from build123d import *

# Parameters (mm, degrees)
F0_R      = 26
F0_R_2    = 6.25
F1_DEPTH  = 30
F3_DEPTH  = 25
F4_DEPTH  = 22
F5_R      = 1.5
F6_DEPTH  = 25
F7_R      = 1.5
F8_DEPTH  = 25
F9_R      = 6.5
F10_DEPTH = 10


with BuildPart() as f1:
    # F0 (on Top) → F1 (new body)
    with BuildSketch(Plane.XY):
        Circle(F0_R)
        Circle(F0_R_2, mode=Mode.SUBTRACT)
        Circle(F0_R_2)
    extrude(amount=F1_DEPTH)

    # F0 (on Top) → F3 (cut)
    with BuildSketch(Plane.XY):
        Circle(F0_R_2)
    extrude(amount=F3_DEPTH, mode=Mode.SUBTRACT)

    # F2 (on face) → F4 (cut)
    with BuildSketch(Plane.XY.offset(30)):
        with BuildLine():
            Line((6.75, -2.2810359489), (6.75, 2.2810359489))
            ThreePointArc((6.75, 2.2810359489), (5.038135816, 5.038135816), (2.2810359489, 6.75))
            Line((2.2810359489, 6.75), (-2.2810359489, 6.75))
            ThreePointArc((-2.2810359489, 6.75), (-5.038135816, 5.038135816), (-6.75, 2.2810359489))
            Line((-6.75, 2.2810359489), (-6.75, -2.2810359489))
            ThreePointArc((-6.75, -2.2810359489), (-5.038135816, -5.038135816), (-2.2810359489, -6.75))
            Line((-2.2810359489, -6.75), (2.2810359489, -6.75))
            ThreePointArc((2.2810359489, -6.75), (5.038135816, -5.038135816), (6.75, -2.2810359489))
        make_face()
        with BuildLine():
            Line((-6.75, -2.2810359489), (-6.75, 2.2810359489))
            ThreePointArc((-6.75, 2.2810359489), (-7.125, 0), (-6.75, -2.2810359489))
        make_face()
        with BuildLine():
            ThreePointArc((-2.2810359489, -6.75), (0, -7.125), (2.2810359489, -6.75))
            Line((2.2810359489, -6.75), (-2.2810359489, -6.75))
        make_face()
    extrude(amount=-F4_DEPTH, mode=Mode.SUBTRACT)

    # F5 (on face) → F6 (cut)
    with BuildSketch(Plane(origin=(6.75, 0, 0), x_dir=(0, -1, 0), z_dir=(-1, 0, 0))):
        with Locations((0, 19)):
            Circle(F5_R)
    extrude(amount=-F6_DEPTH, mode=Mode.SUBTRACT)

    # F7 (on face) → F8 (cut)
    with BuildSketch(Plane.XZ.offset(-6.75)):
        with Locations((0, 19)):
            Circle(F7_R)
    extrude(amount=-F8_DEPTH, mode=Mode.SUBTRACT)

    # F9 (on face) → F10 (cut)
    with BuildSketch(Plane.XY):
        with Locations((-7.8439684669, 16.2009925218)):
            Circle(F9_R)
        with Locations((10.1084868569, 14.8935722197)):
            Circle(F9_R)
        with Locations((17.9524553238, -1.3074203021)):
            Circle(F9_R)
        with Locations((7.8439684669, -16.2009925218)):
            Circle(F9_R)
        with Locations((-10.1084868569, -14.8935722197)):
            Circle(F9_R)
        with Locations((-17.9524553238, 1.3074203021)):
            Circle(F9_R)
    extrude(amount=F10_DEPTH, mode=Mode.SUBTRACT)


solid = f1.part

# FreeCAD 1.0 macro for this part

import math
import FreeCAD as App
import Part
import Sketcher
Q = App.Units.Quantity

doc = App.newDocument("Part")
body = doc.addObject("PartDesign::Body", "Body")

# Sketch on XY plane
sketch1 = doc.addObject("Sketcher::SketchObject", "Sketch")
body.addObject(sketch1)
sketch1.AttachmentSupport = (doc.XY_Plane, [""])
sketch1.MapMode = "FlatFace"
sketch1.addGeometry(Part.Circle(App.Vector(0, 0, 0), App.Vector(0, 0, 1), 26), False)
sketch1.addConstraint([
    Sketcher.Constraint("Coincident", 0, 3, -1, 1),
    Sketcher.Constraint("Diameter", 0, Q("52 mm")),
])
pad1 = doc.addObject("PartDesign::Pad", "Pad")
body.addObject(pad1)
pad1.Profile = sketch1
pad1.Length = 30

# Sketch on XY plane
sketch2 = doc.addObject("Sketcher::SketchObject", "Sketch001")
body.addObject(sketch2)
sketch2.AttachmentSupport = (doc.XY_Plane, [""])
sketch2.MapMode = "FlatFace"
sketch2.addGeometry(Part.Circle(App.Vector(0, 0, 0), App.Vector(0, 0, 1), 6.25), False)
sketch2.addConstraint([
    Sketcher.Constraint("Coincident", 0, 3, -1, 1),
    Sketcher.Constraint("Diameter", 0, Q("12.5 mm")),
])
pocket1 = doc.addObject("PartDesign::Pocket", "Pocket")
body.addObject(pocket1)
pocket1.Profile = sketch2
pocket1.Length = 25
pocket1.Reversed = True

# Sketch on XY plane
sketch3 = doc.addObject("Sketcher::SketchObject", "Sketch002")
body.addObject(sketch3)
sketch3.AttachmentSupport = (doc.XY_Plane, [""])
sketch3.MapMode = "FlatFace"
sketch3.AttachmentOffset = App.Placement(App.Vector(0, 0, 30), App.Rotation())
sketch3.addGeometry([
    Part.LineSegment(App.Vector(6.75, -2.281036, 0), App.Vector(6.75, 2.281036, 0)),  # 0
    Part.ArcOfCircle(Part.Circle(App.Vector(0, 0, 0), App.Vector(0, 0, 1), 7.125), math.radians(18.671718), math.radians(71.328282)),  # 1
    Part.LineSegment(App.Vector(2.281036, 6.75, 0), App.Vector(-2.281036, 6.75, 0)),  # 2
    Part.ArcOfCircle(Part.Circle(App.Vector(0, 0, 0), App.Vector(0, 0, 1), 7.125), math.radians(108.671718), math.radians(161.328282)),  # 3
    Part.ArcOfCircle(Part.Circle(App.Vector(0, 0, 0), App.Vector(0, 0, 1), 7.125), math.radians(161.328282), math.radians(198.671718)),  # 4
    Part.ArcOfCircle(Part.Circle(App.Vector(0, 0, 0), App.Vector(0, 0, 1), 7.125), math.radians(-161.328282), math.radians(-108.671718)),  # 5
    Part.ArcOfCircle(Part.Circle(App.Vector(0, 0, 0), App.Vector(0, 0, 1), 7.125), math.radians(-108.671718), math.radians(-71.328282)),  # 6
    Part.ArcOfCircle(Part.Circle(App.Vector(0, 0, 0), App.Vector(0, 0, 1), 7.125), math.radians(-71.328282), math.radians(-18.671718)),  # 7
], False)
sketch3.addConstraint([
    Sketcher.Constraint("Coincident", 0, 2, 1, 1),
    Sketcher.Constraint("Coincident", 1, 2, 2, 1),
    Sketcher.Constraint("Coincident", 2, 2, 3, 1),
    Sketcher.Constraint("Tangent", 3, 2, 4, 1),
    Sketcher.Constraint("Tangent", 4, 2, 5, 1),
    Sketcher.Constraint("Tangent", 5, 2, 6, 1),
    Sketcher.Constraint("Tangent", 6, 2, 7, 1),
    Sketcher.Constraint("Coincident", 7, 2, 0, 1),
    Sketcher.Constraint("Vertical", 0),
    Sketcher.Constraint("Horizontal", 2),
    Sketcher.Constraint("Coincident", 1, 3, -1, 1),
    Sketcher.Constraint("Coincident", 3, 3, -1, 1),
    Sketcher.Constraint("Coincident", 5, 3, -1, 1),
    Sketcher.Constraint("Coincident", 7, 3, -1, 1),
    Sketcher.Constraint("Equal", 1, 3),
    Sketcher.Constraint("Horizontal", 0, 2, 3, 2),
    Sketcher.Constraint("Horizontal", 5, 2, 6, 2),
    Sketcher.Constraint("Horizontal", 4, 2, 7, 2),
    Sketcher.Constraint("Vertical", 2, 2, 5, 2),
    Sketcher.Constraint("Equal", 2, 0),
    Sketcher.Constraint("Radius", 1, Q("7.125 mm")),
    Sketcher.Constraint("DistanceX", -1, 1, 0, 2, Q("6.75 mm")),
])
pocket2 = doc.addObject("PartDesign::Pocket", "Pocket001")
body.addObject(pocket2)
pocket2.Profile = sketch3
pocket2.Length = 22

# Sketch on YZ plane
sketch4 = doc.addObject("Sketcher::SketchObject", "Sketch003")
body.addObject(sketch4)
sketch4.AttachmentSupport = (doc.YZ_Plane, [""])
sketch4.MapMode = "FlatFace"
sketch4.AttachmentOffset = App.Placement(App.Vector(0, 0, 6.75), App.Rotation())
sketch4.addGeometry(Part.Circle(App.Vector(0, 19, 0), App.Vector(0, 0, 1), 1.5), False)
sketch4.addConstraint([
    Sketcher.Constraint("PointOnObject", 0, 3, -2),
    Sketcher.Constraint("Diameter", 0, Q("3 mm")),
    Sketcher.Constraint("DistanceY", -1, 1, 0, 3, Q("19 mm")),
])
pocket3 = doc.addObject("PartDesign::Pocket", "Pocket002")
body.addObject(pocket3)
pocket3.Profile = sketch4
pocket3.Length = 25
pocket3.Reversed = True

# Sketch on XZ plane
sketch5 = doc.addObject("Sketcher::SketchObject", "Sketch004")
body.addObject(sketch5)
sketch5.AttachmentSupport = (doc.XZ_Plane, [""])
sketch5.MapMode = "FlatFace"
sketch5.AttachmentOffset = App.Placement(App.Vector(0, 0, -6.75), App.Rotation())
sketch5.addGeometry(Part.Circle(App.Vector(0, 19, 0), App.Vector(0, 0, 1), 1.5), False)
sketch5.addConstraint([
    Sketcher.Constraint("PointOnObject", 0, 3, -2),
    Sketcher.Constraint("Diameter", 0, Q("3 mm")),
    Sketcher.Constraint("DistanceY", -1, 1, 0, 3, Q("19 mm")),
])
pocket4 = doc.addObject("PartDesign::Pocket", "Pocket003")
body.addObject(pocket4)
pocket4.Profile = sketch5
pocket4.Length = 25

# Sketch on XY plane
sketch6 = doc.addObject("Sketcher::SketchObject", "Sketch005")
body.addObject(sketch6)
sketch6.AttachmentSupport = (doc.XY_Plane, [""])
sketch6.MapMode = "FlatFace"
sketch6.addGeometry([
    Part.Circle(App.Vector(-7.843968, 16.200993, 0), App.Vector(0, 0, 1), 6.5),  # 0
    Part.Circle(App.Vector(10.108487, 14.893572, 0), App.Vector(0, 0, 1), 6.5),  # 1
    Part.Circle(App.Vector(17.952455, -1.30742, 0), App.Vector(0, 0, 1), 6.5),  # 2
    Part.Circle(App.Vector(7.843968, -16.200993, 0), App.Vector(0, 0, 1), 6.5),  # 3
    Part.Circle(App.Vector(-10.108487, -14.893572, 0), App.Vector(0, 0, 1), 6.5),  # 4
    Part.Circle(App.Vector(-17.952455, 1.30742, 0), App.Vector(0, 0, 1), 6.5),  # 5
], False)
sketch6.addConstraint([
    Sketcher.Constraint("Equal", 0, 1),
    Sketcher.Constraint("Equal", 1, 2),
    Sketcher.Constraint("Equal", 2, 3),
    Sketcher.Constraint("Equal", 3, 4),
    Sketcher.Constraint("Equal", 4, 5),
    Sketcher.Constraint("Symmetric", 0, 3, 3, 3, -1, 1),
    Sketcher.Constraint("Symmetric", 1, 3, 4, 3, -1, 1),
    Sketcher.Constraint("Symmetric", 2, 3, 5, 3, -1, 1),
    Sketcher.Constraint("Diameter", 0, Q("13 mm")),
    Sketcher.Constraint("DistanceX", 0, 3, -1, 1, Q("7.843968 mm")),
    Sketcher.Constraint("DistanceY", 2, 3, -1, 1, Q("1.30742 mm")),
    Sketcher.Constraint("DistanceY", 1, 3, 0, 3, Q("1.30742 mm")),
    Sketcher.Constraint("DistanceX", 1, 3, 2, 3, Q("7.843968 mm")),
    Sketcher.Constraint("DistanceX", 3, 3, 1, 3, Q("2.264518 mm")),
    Sketcher.Constraint("DistanceY", 4, 3, 2, 3, Q("13.586152 mm")),
])
pocket5 = doc.addObject("PartDesign::Pocket", "Pocket004")
body.addObject(pocket5)
pocket5.Profile = sketch6
pocket5.Length = 10
pocket5.Reversed = True

doc.recompute()
